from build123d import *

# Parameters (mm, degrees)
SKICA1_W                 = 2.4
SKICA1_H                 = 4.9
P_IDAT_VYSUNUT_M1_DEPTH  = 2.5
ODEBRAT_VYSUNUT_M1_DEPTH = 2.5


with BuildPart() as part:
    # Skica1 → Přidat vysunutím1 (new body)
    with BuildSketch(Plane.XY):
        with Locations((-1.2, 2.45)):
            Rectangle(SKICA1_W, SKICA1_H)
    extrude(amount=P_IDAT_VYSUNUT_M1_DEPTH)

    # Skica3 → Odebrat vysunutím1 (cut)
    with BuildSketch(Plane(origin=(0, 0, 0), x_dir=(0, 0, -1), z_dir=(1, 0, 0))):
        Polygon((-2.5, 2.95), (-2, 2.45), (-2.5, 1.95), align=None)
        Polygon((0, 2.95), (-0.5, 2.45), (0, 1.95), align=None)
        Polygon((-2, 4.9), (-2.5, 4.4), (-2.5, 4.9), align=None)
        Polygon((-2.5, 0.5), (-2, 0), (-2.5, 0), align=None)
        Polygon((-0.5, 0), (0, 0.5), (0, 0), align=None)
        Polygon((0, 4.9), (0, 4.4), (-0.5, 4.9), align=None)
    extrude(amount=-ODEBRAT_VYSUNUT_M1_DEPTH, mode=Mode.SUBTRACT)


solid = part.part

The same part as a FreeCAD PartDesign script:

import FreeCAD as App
import Part
import Sketcher


def add_polygon(sketch, points):
    """Adds a closed chain of lines whose ends are joined by coincident constraints."""
    first, n = sketch.GeometryCount, len(points)
    for a, b in zip(points, points[1:] + points[:1]):
        sketch.addGeometry(Part.LineSegment(App.Vector(*a, 0), App.Vector(*b, 0)), False)
    for i in range(n):
        sketch.addConstraint(Sketcher.Constraint("Coincident", first + i, 2, first + (i + 1) % n, 1))

doc = App.newDocument("Part")
body = doc.addObject("PartDesign::Body", "Body")

# Sketch on XY plane
sketch1 = body.newObject("Sketcher::SketchObject", "Sketch")
sketch1.AttachmentSupport = (doc.getObject("XY_Plane"), [""])
sketch1.MapMode = "FlatFace"
add_polygon(sketch1, [(-2.4, 4.9), (-2.4, 0), (0, 0), (0, 4.9)])  # lines 0-3
sketch1.addConstraint(Sketcher.Constraint("Vertical", 0))
sketch1.addConstraint(Sketcher.Constraint("Horizontal", 1))
sketch1.addConstraint(Sketcher.Constraint("Vertical", 2))
sketch1.addConstraint(Sketcher.Constraint("Horizontal", 3))
sketch1.addConstraint(Sketcher.Constraint("Coincident", 1, 2, -1, 1))
sketch1.addConstraint(Sketcher.Constraint("DistanceX", 1, 1, 1, 2, 2.4))
sketch1.addConstraint(Sketcher.Constraint("DistanceY", 0, 2, 0, 1, 4.9))
pad1 = body.newObject("PartDesign::Pad", "Pad")
pad1.Profile = sketch1
pad1.Length = 2.5

# Sketch on YZ plane
sketch2 = body.newObject("Sketcher::SketchObject", "Sketch001")
sketch2.AttachmentSupport = (doc.getObject("YZ_Plane"), [""])
sketch2.MapMode = "FlatFace"
add_polygon(sketch2, [(2.5, 2), (3, 2.5), (1.9, 2.5)])  # lines 0-2
add_polygon(sketch2, [(3, 0), (2.5, 0.5), (1.9, 0)])  # lines 3-5
add_polygon(sketch2, [(4.4, 2.5), (4.9, 2), (4.9, 2.5)])  # lines 6-8
add_polygon(sketch2, [(0, 2), (0.5, 2.5), (0, 2.5)])  # lines 9-11
add_polygon(sketch2, [(0.5, 0), (0, 0.5), (0, 0)])  # lines 12-14
add_polygon(sketch2, [(4.4, 0), (4.9, 0), (4.9, 0.5)])  # lines 15-17
sketch2.addConstraint(Sketcher.Constraint("Horizontal", 1))
sketch2.addConstraint(Sketcher.Constraint("Horizontal", 5))
sketch2.addConstraint(Sketcher.Constraint("Vertical", 7))
sketch2.addConstraint(Sketcher.Constraint("Horizontal", 8))
sketch2.addConstraint(Sketcher.Constraint("Horizontal", 10))
sketch2.addConstraint(Sketcher.Constraint("Vertical", 11))
sketch2.addConstraint(Sketcher.Constraint("Vertical", 13))
sketch2.addConstraint(Sketcher.Constraint("Horizontal", 14))
sketch2.addConstraint(Sketcher.Constraint("Horizontal", 15))
sketch2.addConstraint(Sketcher.Constraint("Vertical", 16))
sketch2.addConstraint(Sketcher.Constraint("Coincident", 13, 2, -1, 1))
sketch2.addConstraint(Sketcher.Constraint("PointOnObject", 4, 2, -1))
sketch2.addConstraint(Sketcher.Constraint("PointOnObject", 10, 2, -2))
sketch2.addConstraint(Sketcher.Constraint("PointOnObject", 15, 2, -1))
sketch2.addConstraint(Sketcher.Constraint("Perpendicular", 0, 2))
sketch2.addConstraint(Sketcher.Constraint("Parallel", 2, 3))
sketch2.addConstraint(Sketcher.Constraint("Perpendicular", 3, 4))
sketch2.addConstraint(Sketcher.Constraint("Perpendicular", 4, 6))
sketch2.addConstraint(Sketcher.Constraint("Perpendicular", 6, 9))
sketch2.addConstraint(Sketcher.Constraint("Perpendicular", 9, 12))
sketch2.addConstraint(Sketcher.Constraint("Perpendicular", 12, 17))
sketch2.addConstraint(Sketcher.Constraint("Horizontal", 2, 2, 6, 2))
sketch2.addConstraint(Sketcher.Constraint("Horizontal", 1, 2, 7, 2))
sketch2.addConstraint(Sketcher.Constraint("Horizontal", 8, 2, 9, 2))
sketch2.addConstraint(Sketcher.Constraint("Horizontal", 6, 2, 11, 2))
sketch2.addConstraint(Sketcher.Constraint("Horizontal", 3, 2, 12, 2))
sketch2.addConstraint(Sketcher.Constraint("Horizontal", 12, 2, 16, 2))
sketch2.addConstraint(Sketcher.Constraint("Vertical", 2, 2, 3, 2))
sketch2.addConstraint(Sketcher.Constraint("Vertical", 1, 2, 4, 2))
sketch2.addConstraint(Sketcher.Constraint("Vertical", 0, 2, 5, 2))
sketch2.addConstraint(Sketcher.Constraint("Vertical", 7, 2, 15, 2))
sketch2.addConstraint(Sketcher.Constraint("DistanceX", 1, 2, 1, 1, 1.0))
sketch2.addConstraint(Sketcher.Constraint("DistanceY", -1, 1, 2, 2, 2.0))
sketch2.addConstraint(Sketcher.Constraint("DistanceX", -1, 1, 6, 2, 4.9))
sketch2.addConstraint(Sketcher.Constraint("DistanceX", -1, 1, 0, 2, 2.95))
pocket1 = body.newObject("PartDesign::Pocket", "Pocket")
pocket1.Profile = sketch2
pocket1.Length = 2.5

doc.recompute()
